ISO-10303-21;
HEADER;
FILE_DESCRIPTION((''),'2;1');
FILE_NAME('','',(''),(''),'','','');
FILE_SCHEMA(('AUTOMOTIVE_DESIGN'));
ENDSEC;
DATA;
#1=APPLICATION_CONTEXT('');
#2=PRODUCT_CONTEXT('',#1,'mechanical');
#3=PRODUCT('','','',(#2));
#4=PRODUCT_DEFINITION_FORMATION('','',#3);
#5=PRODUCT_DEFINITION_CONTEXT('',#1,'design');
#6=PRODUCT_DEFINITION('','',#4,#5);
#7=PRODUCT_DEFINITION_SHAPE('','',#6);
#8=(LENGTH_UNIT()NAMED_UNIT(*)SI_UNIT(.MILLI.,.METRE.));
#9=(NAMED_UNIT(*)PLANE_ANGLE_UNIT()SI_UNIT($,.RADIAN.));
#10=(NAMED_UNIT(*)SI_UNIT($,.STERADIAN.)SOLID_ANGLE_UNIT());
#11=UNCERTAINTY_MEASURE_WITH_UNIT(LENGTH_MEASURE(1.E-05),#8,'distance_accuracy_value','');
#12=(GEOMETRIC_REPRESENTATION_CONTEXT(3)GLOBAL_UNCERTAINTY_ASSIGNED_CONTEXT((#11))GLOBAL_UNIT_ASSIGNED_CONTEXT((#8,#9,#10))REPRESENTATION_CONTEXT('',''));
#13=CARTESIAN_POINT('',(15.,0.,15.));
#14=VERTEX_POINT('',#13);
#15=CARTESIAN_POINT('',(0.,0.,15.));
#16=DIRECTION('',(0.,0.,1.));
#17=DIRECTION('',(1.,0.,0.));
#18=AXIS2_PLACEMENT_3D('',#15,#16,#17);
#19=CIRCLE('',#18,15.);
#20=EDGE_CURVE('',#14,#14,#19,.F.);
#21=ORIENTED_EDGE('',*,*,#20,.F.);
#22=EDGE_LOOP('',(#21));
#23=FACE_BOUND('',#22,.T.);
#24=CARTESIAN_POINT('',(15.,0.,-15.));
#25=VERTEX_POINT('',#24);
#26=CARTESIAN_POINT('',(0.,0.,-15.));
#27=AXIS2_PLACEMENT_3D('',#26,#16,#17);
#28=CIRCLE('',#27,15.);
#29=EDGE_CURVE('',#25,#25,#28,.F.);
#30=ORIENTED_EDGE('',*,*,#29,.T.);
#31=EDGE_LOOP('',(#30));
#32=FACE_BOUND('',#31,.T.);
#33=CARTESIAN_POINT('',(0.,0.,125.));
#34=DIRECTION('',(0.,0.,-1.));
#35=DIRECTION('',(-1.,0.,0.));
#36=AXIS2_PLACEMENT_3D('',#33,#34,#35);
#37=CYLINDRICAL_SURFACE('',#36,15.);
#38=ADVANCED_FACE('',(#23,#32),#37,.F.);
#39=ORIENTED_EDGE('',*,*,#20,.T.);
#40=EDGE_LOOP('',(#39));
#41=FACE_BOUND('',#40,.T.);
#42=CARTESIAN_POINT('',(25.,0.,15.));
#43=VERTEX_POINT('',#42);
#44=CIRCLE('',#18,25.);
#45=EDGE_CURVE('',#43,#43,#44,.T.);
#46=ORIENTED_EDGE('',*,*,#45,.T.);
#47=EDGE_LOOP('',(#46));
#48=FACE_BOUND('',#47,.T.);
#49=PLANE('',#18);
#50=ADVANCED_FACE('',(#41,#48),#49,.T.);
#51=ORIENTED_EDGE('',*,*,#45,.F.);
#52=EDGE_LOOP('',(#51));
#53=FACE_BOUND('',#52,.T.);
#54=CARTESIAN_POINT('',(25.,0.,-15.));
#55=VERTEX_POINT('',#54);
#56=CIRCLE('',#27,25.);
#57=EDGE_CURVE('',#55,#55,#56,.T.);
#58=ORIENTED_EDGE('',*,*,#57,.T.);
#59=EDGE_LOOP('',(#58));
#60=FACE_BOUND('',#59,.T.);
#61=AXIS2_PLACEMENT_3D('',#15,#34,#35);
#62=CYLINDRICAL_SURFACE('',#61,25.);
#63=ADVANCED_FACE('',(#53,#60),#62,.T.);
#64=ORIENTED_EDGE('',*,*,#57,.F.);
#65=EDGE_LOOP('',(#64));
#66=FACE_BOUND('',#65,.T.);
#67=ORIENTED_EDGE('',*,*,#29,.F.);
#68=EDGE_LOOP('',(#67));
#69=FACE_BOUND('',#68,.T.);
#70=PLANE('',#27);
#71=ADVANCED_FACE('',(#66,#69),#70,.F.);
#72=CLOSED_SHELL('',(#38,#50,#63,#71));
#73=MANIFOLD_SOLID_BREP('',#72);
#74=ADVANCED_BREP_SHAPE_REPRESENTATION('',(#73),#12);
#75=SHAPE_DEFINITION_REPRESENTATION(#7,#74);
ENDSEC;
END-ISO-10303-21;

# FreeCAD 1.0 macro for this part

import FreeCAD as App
import Part
import Sketcher

V = App.Vector

doc = App.newDocument("Part")
body = doc.addObject("PartDesign::Body", "Body")

# Sketch on XY plane
sketch1 = body.newObject("Sketcher::SketchObject", "Sketch")
sketch1.AttachmentSupport = (doc.getObject("XY_Plane"), [""])
sketch1.MapMode = "FlatFace"
sketch1.addGeometry(Part.Circle(V(0, 0, 0), V(0, 0, 1), 25), False)
sketch1.addConstraint(Sketcher.Constraint("Coincident", 0, 3, -1, 1))
sketch1.addConstraint(Sketcher.Constraint("Diameter", 0, 50.0))
pad1 = body.newObject("PartDesign::Pad", "Pad")
pad1.Profile = sketch1
pad1.Length = 30
pad1.Midplane = True

# Sketch on XY plane
sketch2 = body.newObject("Sketcher::SketchObject", "Sketch001")
sketch2.AttachmentSupport = (doc.getObject("XY_Plane"), [""])
sketch2.MapMode = "FlatFace"
sketch2.AttachmentOffset = App.Placement(V(0, 0, 15), App.Rotation())
sketch2.addGeometry(Part.Circle(V(0, 0, 0), V(0, 0, 1), 15), False)
sketch2.addConstraint(Sketcher.Constraint("Coincident", 0, 3, -1, 1))
sketch2.addConstraint(Sketcher.Constraint("Diameter", 0, 30.0))
pocket1 = body.newObject("PartDesign::Pocket", "Pocket")
pocket1.Profile = sketch2
pocket1.Type = "ThroughAll"
pocket1.Midplane = True

doc.recompute()
